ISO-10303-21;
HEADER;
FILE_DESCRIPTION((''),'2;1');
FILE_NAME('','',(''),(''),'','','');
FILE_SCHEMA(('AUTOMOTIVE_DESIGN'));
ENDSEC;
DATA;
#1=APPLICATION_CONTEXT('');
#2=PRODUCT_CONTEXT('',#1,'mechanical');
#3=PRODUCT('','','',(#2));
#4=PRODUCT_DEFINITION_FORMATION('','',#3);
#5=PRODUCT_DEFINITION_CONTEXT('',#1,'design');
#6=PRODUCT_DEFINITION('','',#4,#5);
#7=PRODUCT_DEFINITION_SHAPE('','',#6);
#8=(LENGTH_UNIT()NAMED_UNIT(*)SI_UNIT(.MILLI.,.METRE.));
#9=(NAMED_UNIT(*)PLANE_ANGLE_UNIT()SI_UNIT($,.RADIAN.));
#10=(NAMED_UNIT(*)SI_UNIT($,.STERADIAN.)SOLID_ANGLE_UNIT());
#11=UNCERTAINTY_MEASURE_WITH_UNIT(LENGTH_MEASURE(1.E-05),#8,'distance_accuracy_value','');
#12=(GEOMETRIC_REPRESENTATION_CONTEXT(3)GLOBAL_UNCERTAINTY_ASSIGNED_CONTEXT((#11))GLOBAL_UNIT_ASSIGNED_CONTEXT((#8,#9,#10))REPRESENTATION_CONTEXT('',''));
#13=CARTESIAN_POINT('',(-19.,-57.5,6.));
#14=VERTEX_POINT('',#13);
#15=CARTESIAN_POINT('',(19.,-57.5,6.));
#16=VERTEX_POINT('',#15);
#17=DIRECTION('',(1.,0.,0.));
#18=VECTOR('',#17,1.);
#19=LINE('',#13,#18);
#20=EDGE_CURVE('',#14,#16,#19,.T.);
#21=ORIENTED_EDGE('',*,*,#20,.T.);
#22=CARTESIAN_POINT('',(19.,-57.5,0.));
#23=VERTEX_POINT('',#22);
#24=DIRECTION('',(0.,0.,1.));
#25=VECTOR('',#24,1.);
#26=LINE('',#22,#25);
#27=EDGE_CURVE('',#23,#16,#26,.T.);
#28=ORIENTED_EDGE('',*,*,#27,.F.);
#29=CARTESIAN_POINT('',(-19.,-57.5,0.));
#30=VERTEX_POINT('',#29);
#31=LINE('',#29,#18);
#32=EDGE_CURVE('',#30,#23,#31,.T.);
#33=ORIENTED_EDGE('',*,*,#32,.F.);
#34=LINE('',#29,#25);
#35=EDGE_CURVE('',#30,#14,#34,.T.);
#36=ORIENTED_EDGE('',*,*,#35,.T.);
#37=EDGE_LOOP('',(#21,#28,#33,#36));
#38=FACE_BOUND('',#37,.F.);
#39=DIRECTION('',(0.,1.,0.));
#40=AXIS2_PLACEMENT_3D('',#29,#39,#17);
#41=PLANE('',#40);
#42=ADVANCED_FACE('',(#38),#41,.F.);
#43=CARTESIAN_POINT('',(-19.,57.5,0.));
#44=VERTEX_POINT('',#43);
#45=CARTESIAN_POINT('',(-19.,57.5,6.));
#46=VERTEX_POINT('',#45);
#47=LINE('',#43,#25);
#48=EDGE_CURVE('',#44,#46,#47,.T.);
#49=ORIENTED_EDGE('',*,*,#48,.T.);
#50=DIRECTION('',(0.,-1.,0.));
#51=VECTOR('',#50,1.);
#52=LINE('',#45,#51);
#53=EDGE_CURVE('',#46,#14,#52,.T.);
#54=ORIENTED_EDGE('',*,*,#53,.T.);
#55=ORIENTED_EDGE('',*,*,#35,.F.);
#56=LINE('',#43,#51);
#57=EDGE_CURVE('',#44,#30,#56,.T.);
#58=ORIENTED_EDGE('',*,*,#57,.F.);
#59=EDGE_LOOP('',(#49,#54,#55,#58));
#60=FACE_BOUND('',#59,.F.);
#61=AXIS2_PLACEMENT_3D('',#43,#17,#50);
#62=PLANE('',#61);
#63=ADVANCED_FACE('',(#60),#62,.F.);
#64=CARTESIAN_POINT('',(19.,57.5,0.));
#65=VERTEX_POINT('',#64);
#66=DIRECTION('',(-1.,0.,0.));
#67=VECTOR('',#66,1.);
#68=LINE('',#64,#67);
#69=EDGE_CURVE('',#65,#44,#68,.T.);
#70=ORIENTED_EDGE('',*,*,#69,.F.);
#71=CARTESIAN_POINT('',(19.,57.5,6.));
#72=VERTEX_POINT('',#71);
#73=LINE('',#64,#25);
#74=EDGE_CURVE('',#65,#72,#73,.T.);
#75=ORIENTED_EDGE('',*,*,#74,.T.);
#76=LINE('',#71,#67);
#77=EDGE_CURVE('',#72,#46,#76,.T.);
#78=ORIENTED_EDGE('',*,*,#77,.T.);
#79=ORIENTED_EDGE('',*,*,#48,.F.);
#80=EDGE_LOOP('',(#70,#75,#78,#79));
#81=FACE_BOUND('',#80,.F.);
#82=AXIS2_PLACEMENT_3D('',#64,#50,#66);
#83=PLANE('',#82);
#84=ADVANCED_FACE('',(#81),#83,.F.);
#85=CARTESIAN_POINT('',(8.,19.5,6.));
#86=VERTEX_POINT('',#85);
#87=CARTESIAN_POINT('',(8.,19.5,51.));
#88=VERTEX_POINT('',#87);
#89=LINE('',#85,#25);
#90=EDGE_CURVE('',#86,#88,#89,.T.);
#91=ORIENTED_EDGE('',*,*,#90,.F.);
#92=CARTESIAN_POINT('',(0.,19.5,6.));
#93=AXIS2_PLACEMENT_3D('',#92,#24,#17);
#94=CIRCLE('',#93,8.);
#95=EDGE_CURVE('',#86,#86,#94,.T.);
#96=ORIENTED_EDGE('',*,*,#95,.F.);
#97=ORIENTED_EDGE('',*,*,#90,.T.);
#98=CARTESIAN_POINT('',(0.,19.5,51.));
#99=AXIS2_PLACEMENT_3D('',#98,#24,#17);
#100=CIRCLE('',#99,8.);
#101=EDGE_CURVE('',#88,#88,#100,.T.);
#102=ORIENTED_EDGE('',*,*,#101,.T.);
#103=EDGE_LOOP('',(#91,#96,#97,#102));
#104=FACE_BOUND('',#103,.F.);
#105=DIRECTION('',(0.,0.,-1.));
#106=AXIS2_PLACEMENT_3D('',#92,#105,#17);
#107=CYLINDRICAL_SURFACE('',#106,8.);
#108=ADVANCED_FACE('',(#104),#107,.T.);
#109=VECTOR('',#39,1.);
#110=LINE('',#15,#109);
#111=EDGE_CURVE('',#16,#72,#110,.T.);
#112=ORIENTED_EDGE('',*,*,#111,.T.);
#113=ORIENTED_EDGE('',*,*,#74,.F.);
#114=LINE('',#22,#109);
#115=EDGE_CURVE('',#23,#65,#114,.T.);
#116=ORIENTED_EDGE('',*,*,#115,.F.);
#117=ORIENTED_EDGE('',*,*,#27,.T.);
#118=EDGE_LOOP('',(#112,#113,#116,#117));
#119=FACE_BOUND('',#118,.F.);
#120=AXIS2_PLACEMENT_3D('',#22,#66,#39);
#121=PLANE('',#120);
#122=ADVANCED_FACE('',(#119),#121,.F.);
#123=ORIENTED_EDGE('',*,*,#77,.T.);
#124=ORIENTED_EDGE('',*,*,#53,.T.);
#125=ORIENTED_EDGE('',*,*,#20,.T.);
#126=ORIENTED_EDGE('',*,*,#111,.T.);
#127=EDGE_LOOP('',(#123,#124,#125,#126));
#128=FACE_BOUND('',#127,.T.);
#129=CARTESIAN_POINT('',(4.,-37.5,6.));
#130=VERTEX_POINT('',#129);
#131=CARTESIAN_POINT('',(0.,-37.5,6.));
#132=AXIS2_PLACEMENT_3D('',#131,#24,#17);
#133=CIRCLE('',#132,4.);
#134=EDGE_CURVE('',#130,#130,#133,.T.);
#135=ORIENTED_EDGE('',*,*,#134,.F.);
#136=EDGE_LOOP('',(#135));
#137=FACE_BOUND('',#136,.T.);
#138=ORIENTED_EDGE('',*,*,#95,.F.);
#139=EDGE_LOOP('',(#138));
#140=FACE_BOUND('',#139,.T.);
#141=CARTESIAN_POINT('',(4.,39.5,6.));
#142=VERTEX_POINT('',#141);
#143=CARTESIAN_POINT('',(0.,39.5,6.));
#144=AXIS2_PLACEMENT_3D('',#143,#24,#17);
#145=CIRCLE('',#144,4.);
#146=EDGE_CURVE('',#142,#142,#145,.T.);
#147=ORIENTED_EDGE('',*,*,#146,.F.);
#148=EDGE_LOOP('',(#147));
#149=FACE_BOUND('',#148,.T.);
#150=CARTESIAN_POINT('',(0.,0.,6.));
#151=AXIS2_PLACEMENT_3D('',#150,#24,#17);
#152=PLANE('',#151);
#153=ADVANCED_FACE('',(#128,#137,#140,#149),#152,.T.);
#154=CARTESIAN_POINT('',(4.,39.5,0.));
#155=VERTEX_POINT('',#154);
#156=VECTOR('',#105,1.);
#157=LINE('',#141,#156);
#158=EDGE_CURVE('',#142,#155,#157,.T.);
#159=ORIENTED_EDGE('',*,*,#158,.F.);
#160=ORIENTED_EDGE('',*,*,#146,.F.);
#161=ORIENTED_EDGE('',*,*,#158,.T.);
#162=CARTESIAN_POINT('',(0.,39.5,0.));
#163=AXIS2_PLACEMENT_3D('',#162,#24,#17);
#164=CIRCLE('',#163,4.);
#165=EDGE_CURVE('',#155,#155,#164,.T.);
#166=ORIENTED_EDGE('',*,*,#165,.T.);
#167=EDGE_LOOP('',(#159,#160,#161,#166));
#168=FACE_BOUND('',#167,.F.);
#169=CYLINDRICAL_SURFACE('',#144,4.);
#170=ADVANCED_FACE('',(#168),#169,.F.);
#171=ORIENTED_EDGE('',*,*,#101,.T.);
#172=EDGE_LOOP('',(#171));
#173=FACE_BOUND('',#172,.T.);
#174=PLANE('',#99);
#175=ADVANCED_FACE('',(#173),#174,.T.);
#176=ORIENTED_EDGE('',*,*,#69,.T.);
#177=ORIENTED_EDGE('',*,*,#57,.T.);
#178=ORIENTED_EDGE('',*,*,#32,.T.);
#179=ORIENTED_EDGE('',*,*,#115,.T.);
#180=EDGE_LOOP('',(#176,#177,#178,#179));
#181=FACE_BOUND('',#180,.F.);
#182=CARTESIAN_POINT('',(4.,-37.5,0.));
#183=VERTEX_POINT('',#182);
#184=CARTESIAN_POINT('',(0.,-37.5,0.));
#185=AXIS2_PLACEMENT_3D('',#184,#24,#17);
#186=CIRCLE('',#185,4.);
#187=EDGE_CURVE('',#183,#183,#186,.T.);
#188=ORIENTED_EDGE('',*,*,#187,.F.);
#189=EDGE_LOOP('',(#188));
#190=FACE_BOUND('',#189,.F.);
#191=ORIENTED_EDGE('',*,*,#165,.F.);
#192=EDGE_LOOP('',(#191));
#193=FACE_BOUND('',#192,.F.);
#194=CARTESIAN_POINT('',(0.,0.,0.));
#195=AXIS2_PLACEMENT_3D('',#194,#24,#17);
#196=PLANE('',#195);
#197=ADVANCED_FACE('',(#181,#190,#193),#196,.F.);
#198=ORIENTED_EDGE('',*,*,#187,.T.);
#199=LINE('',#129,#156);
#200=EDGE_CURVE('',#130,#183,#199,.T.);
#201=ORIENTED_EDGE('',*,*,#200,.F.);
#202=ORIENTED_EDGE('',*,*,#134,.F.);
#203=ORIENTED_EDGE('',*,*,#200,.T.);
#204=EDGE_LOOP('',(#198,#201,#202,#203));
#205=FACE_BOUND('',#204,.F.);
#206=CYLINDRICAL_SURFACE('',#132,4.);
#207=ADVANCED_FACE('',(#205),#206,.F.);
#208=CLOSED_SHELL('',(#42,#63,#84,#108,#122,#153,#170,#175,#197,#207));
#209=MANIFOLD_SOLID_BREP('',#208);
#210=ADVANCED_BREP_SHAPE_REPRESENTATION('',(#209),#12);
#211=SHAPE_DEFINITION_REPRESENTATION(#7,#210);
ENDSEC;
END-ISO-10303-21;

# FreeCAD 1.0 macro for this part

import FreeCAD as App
import Part
import Sketcher
from FreeCAD import Vector
Q = App.Units.Quantity


def add_polygon(sketch, points):
    """Adds a closed chain of lines whose ends are joined by coincident constraints."""
    first, n = sketch.GeometryCount, len(points)
    for a, b in zip(points, points[1:] + points[:1]):
        sketch.addGeometry(Part.LineSegment(App.Vector(*a, 0), App.Vector(*b, 0)), False)
    for i in range(n):
        sketch.addConstraint(Sketcher.Constraint("Coincident", first + i, 2, first + (i + 1) % n, 1))

doc = App.newDocument("Part")
body = doc.addObject("PartDesign::Body", "Body")

# Sketch on XY plane
sketch1 = body.newObject("Sketcher::SketchObject", "Sketch")
sketch1.AttachmentSupport = (doc.getObject("XY_Plane"), [""])
sketch1.MapMode = "FlatFace"
add_polygon(sketch1, [(19, 57.5), (-19, 57.5), (-19, -57.5), (19, -57.5)])  # lines 0-3
sketch1.addConstraint(Sketcher.Constraint("Horizontal", 0))
sketch1.addConstraint(Sketcher.Constraint("Vertical", 1))
sketch1.addConstraint(Sketcher.Constraint("Horizontal", 2))
sketch1.addConstraint(Sketcher.Constraint("Vertical", 3))
sketch1.addConstraint(Sketcher.Constraint("Symmetric", 0, 2, 2, 2, -1, 1))
sketch1.addConstraint(Sketcher.Constraint("DistanceX", 0, 2, 0, 1, Q("38 mm")))
sketch1.addConstraint(Sketcher.Constraint("DistanceY", 1, 2, 1, 1, Q("115 mm")))
pad1 = body.newObject("PartDesign::Pad", "Pad")
pad1.Profile = sketch1
pad1.Length = 6

# Sketch on XY plane
sketch2 = body.newObject("Sketcher::SketchObject", "Sketch001")
sketch2.AttachmentSupport = (doc.getObject("XY_Plane"), [""])
sketch2.MapMode = "FlatFace"
sketch2.AttachmentOffset = App.Placement(Vector(0, 0, 6), App.Rotation())
sketch2.addGeometry(Part.Circle(Vector(0, 19.5, 0), Vector(0, 0, 1), 8), False)
sketch2.addConstraint(Sketcher.Constraint("PointOnObject", 0, 3, -2))
sketch2.addConstraint(Sketcher.Constraint("Diameter", 0, Q("16 mm")))
sketch2.addConstraint(Sketcher.Constraint("DistanceY", -1, 1, 0, 3, Q("19.5 mm")))
pad2 = body.newObject("PartDesign::Pad", "Pad001")
pad2.Profile = sketch2
pad2.Length = 45

# Sketch on XY plane
sketch3 = body.newObject("Sketcher::SketchObject", "Sketch002")
sketch3.AttachmentSupport = (doc.getObject("XY_Plane"), [""])
sketch3.MapMode = "FlatFace"
sketch3.AttachmentOffset = App.Placement(Vector(0, 0, 6), App.Rotation())
sketch3.addGeometry(Part.Circle(Vector(0, -37.5, 0), Vector(0, 0, 1), 4), False)
sketch3.addGeometry(Part.Circle(Vector(0, 39.5, 0), Vector(0, 0, 1), 4), False)
sketch3.addConstraint(Sketcher.Constraint("Equal", 0, 1))
sketch3.addConstraint(Sketcher.Constraint("PointOnObject", 0, 3, -2))
sketch3.addConstraint(Sketcher.Constraint("PointOnObject", 1, 3, -2))
sketch3.addConstraint(Sketcher.Constraint("Diameter", 0, Q("8 mm")))
sketch3.addConstraint(Sketcher.Constraint("DistanceY", 0, 3, 1, 3, Q("77 mm")))
sketch3.addConstraint(Sketcher.Constraint("DistanceY", 0, 3, -1, 1, Q("37.5 mm")))
pocket1 = body.newObject("PartDesign::Pocket", "Pocket")
pocket1.Profile = sketch3
pocket1.Length = 6

doc.recompute()
